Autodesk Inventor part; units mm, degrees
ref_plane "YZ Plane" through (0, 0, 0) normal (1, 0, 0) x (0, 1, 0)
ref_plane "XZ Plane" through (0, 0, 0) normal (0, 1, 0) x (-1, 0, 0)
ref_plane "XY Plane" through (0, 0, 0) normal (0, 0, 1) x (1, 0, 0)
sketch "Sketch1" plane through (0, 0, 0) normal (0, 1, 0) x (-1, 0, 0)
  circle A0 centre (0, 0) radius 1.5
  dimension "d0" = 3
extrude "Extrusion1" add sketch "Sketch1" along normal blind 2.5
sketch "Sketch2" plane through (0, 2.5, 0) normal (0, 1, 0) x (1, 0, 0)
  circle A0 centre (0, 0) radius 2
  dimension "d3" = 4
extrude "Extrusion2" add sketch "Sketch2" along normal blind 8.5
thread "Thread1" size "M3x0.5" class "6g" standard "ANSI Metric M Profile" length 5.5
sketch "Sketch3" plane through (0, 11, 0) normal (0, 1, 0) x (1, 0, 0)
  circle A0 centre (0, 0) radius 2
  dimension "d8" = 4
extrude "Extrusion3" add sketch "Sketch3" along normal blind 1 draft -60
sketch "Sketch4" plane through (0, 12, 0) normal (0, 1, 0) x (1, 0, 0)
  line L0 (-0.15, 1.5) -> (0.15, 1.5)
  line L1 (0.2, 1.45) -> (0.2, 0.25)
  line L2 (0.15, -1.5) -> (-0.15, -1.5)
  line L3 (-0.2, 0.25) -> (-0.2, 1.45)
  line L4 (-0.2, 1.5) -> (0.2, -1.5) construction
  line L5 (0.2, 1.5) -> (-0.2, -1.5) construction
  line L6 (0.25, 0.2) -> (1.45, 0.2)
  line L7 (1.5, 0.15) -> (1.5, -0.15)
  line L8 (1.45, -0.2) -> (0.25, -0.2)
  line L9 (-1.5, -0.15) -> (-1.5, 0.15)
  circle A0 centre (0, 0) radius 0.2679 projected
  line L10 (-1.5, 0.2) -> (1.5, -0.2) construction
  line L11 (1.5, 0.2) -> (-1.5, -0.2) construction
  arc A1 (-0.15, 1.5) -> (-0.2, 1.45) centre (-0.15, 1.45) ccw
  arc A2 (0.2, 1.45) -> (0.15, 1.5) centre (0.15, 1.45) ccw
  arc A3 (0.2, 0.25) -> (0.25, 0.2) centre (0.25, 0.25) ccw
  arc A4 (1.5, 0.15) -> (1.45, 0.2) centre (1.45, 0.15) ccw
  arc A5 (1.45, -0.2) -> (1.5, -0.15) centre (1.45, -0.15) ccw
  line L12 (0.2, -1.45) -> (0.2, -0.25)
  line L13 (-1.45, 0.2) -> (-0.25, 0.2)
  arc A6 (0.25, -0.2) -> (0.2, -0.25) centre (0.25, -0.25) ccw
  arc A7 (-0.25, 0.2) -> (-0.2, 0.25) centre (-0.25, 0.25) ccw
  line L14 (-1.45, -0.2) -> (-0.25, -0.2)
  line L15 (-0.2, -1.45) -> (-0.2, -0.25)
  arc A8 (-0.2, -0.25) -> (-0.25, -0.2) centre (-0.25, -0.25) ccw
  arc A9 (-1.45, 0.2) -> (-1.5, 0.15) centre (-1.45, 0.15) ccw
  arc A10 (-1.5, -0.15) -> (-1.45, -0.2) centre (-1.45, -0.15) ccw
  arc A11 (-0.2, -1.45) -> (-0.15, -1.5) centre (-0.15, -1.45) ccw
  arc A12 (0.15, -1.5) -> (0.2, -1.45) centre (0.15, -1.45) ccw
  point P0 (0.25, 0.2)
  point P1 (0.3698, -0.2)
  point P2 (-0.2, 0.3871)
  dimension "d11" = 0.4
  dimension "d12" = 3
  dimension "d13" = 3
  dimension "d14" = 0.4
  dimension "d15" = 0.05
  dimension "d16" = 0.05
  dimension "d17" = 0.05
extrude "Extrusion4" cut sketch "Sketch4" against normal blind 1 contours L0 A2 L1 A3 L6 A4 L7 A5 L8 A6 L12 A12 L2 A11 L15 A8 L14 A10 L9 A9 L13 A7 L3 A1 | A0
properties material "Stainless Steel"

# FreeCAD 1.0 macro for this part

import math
import FreeCAD as App
import Part
import Sketcher

V = App.Vector

doc = App.newDocument("Part")
body = doc.addObject("PartDesign::Body", "Body")

# Sketch on XZ plane
sketch1 = body.newObject("Sketcher::SketchObject", "Sketch")
sketch1.AttachmentSupport = (doc.getObject("XZ_Plane"), [""])
sketch1.MapMode = "FlatFace"
sketch1.addGeometry(Part.Circle(V(0, 0, 0), V(0, 0, 1), 1.5), False)
sketch1.addConstraint([
    Sketcher.Constraint("Coincident", 0, 3, -1, 1),
    Sketcher.Constraint("Diameter", 0, 3.0),
])
pad1 = body.newObject("PartDesign::Pad", "Pad")
pad1.Profile = sketch1
pad1.Length = 2.5
pad1.Reversed = True

# Sketch on XZ plane
sketch2 = body.newObject("Sketcher::SketchObject", "Sketch001")
sketch2.AttachmentSupport = (doc.getObject("XZ_Plane"), [""])
sketch2.MapMode = "FlatFace"
sketch2.AttachmentOffset = App.Placement(V(0, 0, -2.5), App.Rotation())
sketch2.addGeometry(Part.Circle(V(0, 0, 0), V(0, 0, 1), 2), False)
sketch2.addConstraint([
    Sketcher.Constraint("Coincident", 0, 3, -1, 1),
    Sketcher.Constraint("Diameter", 0, 4.0),
])
pad2 = body.newObject("PartDesign::Pad", "Pad001")
pad2.Profile = sketch2
pad2.Length = 8.5
pad2.Reversed = True

# Sketch on XZ plane
sketch3 = body.newObject("Sketcher::SketchObject", "Sketch002")
sketch3.AttachmentSupport = (doc.getObject("XZ_Plane"), [""])
sketch3.MapMode = "FlatFace"
sketch3.AttachmentOffset = App.Placement(V(0, 0, -11), App.Rotation())
sketch3.addGeometry(Part.Circle(V(0, 0, 0), V(0, 0, 1), 2), False)
sketch3.addConstraint([
    Sketcher.Constraint("Coincident", 0, 3, -1, 1),
    Sketcher.Constraint("Diameter", 0, 4.0),
])
pad3 = body.newObject("PartDesign::Pad", "Pad002")
pad3.Profile = sketch3
pad3.Length = 1
pad3.Reversed = True
pad3.TaperAngle = -60

# Sketch on XZ plane
sketch4 = body.newObject("Sketcher::SketchObject", "Sketch003")
sketch4.AttachmentSupport = (doc.getObject("XZ_Plane"), [""])
sketch4.MapMode = "FlatFace"
sketch4.AttachmentOffset = App.Placement(V(0, 0, -12), App.Rotation())
sketch4.addGeometry([
    Part.LineSegment(V(0.15, -1.5, 0), V(-0.15, -1.5, 0)),  # 0
    Part.ArcOfCircle(Part.Circle(V(-0.15, -1.45, 0), V(0, 0, 1), 0.05), math.radians(180), math.radians(270)),  # 1
    Part.LineSegment(V(-0.2, -1.45, 0), V(-0.2, -0.25, 0)),  # 2
    Part.ArcOfCircle(Part.Circle(V(-0.25, -0.25, 0), V(0, 0, 1), 0.05), math.radians(0), math.radians(90)),  # 3
    Part.LineSegment(V(-0.25, -0.2, 0), V(-1.45, -0.2, 0)),  # 4
    Part.ArcOfCircle(Part.Circle(V(-1.45, -0.15, 0), V(0, 0, 1), 0.05), math.radians(180), math.radians(270)),  # 5
    Part.LineSegment(V(-1.5, -0.15, 0), V(-1.5, 0.15, 0)),  # 6
    Part.ArcOfCircle(Part.Circle(V(-1.45, 0.15, 0), V(0, 0, 1), 0.05), math.radians(90), math.radians(180)),  # 7
    Part.LineSegment(V(-1.45, 0.2, 0), V(-0.25, 0.2, 0)),  # 8
    Part.ArcOfCircle(Part.Circle(V(-0.25, 0.25, 0), V(0, 0, 1), 0.05), math.radians(-90), math.radians(0)),  # 9
    Part.LineSegment(V(-0.2, 0.25, 0), V(-0.2, 1.45, 0)),  # 10
    Part.ArcOfCircle(Part.Circle(V(-0.15, 1.45, 0), V(0, 0, 1), 0.05), math.radians(90), math.radians(180)),  # 11
    Part.LineSegment(V(-0.15, 1.5, 0), V(0.15, 1.5, 0)),  # 12
    Part.ArcOfCircle(Part.Circle(V(0.15, 1.45, 0), V(0, 0, 1), 0.05), math.radians(0), math.radians(90)),  # 13
    Part.LineSegment(V(0.2, 1.45, 0), V(0.2, 0.25, 0)),  # 14
    Part.ArcOfCircle(Part.Circle(V(0.25, 0.25, 0), V(0, 0, 1), 0.05), math.radians(180), math.radians(270)),  # 15
    Part.LineSegment(V(0.25, 0.2, 0), V(1.45, 0.2, 0)),  # 16
    Part.ArcOfCircle(Part.Circle(V(1.45, 0.15, 0), V(0, 0, 1), 0.05), math.radians(0), math.radians(90)),  # 17
    Part.LineSegment(V(1.5, 0.15, 0), V(1.5, -0.15, 0)),  # 18
    Part.ArcOfCircle(Part.Circle(V(1.45, -0.15, 0), V(0, 0, 1), 0.05), math.radians(-90), math.radians(0)),  # 19
    Part.LineSegment(V(1.45, -0.2, 0), V(0.25, -0.2, 0)),  # 20
    Part.ArcOfCircle(Part.Circle(V(0.25, -0.25, 0), V(0, 0, 1), 0.05), math.radians(90), math.radians(180)),  # 21
    Part.LineSegment(V(0.2, -0.25, 0), V(0.2, -1.45, 0)),  # 22
    Part.ArcOfCircle(Part.Circle(V(0.15, -1.45, 0), V(0, 0, 1), 0.05), math.radians(-90), math.radians(0)),  # 23
], False)
sketch4.addConstraint([
    Sketcher.Constraint("Tangent", 0, 2, 1, 2),
    Sketcher.Constraint("Tangent", 1, 1, 2, 1),
    Sketcher.Constraint("Tangent", 2, 2, 3, 1),
    Sketcher.Constraint("Tangent", 3, 2, 4, 1),
    Sketcher.Constraint("Tangent", 4, 2, 5, 2),
    Sketcher.Constraint("Tangent", 5, 1, 6, 1),
    Sketcher.Constraint("Tangent", 6, 2, 7, 2),
    Sketcher.Constraint("Tangent", 7, 1, 8, 1),
    Sketcher.Constraint("Tangent", 8, 2, 9, 1),
    Sketcher.Constraint("Tangent", 9, 2, 10, 1),
    Sketcher.Constraint("Tangent", 10, 2, 11, 2),
    Sketcher.Constraint("Tangent", 11, 1, 12, 1),
    Sketcher.Constraint("Tangent", 12, 2, 13, 2),
    Sketcher.Constraint("Tangent", 13, 1, 14, 1),
    Sketcher.Constraint("Tangent", 14, 2, 15, 1),
    Sketcher.Constraint("Tangent", 15, 2, 16, 1),
    Sketcher.Constraint("Tangent", 16, 2, 17, 2),
    Sketcher.Constraint("Tangent", 17, 1, 18, 1),
    Sketcher.Constraint("Tangent", 18, 2, 19, 2),
    Sketcher.Constraint("Tangent", 19, 1, 20, 1),
    Sketcher.Constraint("Tangent", 20, 2, 21, 1),
    Sketcher.Constraint("Tangent", 21, 2, 22, 1),
    Sketcher.Constraint("Tangent", 22, 2, 23, 2),
    Sketcher.Constraint("Tangent", 23, 1, 0, 1),
    Sketcher.Constraint("Horizontal", 0),
    Sketcher.Constraint("Vertical", 2),
    Sketcher.Constraint("Horizontal", 4),
    Sketcher.Constraint("Vertical", 6),
    Sketcher.Constraint("Horizontal", 8),
    Sketcher.Constraint("Vertical", 10),
    Sketcher.Constraint("Horizontal", 12),
    Sketcher.Constraint("Vertical", 14),
    Sketcher.Constraint("Horizontal", 16),
    Sketcher.Constraint("Vertical", 18),
    Sketcher.Constraint("Horizontal", 20),
    Sketcher.Constraint("Vertical", 22),
    Sketcher.Constraint("Equal", 1, 3),
    Sketcher.Constraint("Equal", 3, 5),
    Sketcher.Constraint("Equal", 5, 7),
    Sketcher.Constraint("Equal", 7, 9),
    Sketcher.Constraint("Equal", 9, 11),
    Sketcher.Constraint("Equal", 11, 13),
    Sketcher.Constraint("Equal", 13, 15),
    Sketcher.Constraint("Equal", 15, 17),
    Sketcher.Constraint("Equal", 17, 19),
    Sketcher.Constraint("Equal", 19, 21),
    Sketcher.Constraint("Equal", 21, 23),
    Sketcher.Constraint("Symmetric", 1, 3, 13, 3, -1, 1),
    Sketcher.Constraint("Symmetric", 5, 3, 17, 3, -1, 1),
    Sketcher.Constraint("Symmetric", 9, 3, 21, 3, -1, 1),
    Sketcher.Constraint("Symmetric", 9, 3, 15, 3, -2),
    Sketcher.Constraint("Equal", 20, 2),
    Sketcher.Constraint("Equal", 12, 6),
    Sketcher.Constraint("Radius", 1, 0.05),
    Sketcher.Constraint("DistanceY", 3, 3, 7, 3, 0.4),
    Sketcher.Constraint("DistanceX", 4, 2, 4, 1, 1.2),
])
pocket1 = body.newObject("PartDesign::Pocket", "Pocket")
pocket1.Profile = sketch4
pocket1.Length = 1
pocket1.Reversed = True

doc.recompute()
